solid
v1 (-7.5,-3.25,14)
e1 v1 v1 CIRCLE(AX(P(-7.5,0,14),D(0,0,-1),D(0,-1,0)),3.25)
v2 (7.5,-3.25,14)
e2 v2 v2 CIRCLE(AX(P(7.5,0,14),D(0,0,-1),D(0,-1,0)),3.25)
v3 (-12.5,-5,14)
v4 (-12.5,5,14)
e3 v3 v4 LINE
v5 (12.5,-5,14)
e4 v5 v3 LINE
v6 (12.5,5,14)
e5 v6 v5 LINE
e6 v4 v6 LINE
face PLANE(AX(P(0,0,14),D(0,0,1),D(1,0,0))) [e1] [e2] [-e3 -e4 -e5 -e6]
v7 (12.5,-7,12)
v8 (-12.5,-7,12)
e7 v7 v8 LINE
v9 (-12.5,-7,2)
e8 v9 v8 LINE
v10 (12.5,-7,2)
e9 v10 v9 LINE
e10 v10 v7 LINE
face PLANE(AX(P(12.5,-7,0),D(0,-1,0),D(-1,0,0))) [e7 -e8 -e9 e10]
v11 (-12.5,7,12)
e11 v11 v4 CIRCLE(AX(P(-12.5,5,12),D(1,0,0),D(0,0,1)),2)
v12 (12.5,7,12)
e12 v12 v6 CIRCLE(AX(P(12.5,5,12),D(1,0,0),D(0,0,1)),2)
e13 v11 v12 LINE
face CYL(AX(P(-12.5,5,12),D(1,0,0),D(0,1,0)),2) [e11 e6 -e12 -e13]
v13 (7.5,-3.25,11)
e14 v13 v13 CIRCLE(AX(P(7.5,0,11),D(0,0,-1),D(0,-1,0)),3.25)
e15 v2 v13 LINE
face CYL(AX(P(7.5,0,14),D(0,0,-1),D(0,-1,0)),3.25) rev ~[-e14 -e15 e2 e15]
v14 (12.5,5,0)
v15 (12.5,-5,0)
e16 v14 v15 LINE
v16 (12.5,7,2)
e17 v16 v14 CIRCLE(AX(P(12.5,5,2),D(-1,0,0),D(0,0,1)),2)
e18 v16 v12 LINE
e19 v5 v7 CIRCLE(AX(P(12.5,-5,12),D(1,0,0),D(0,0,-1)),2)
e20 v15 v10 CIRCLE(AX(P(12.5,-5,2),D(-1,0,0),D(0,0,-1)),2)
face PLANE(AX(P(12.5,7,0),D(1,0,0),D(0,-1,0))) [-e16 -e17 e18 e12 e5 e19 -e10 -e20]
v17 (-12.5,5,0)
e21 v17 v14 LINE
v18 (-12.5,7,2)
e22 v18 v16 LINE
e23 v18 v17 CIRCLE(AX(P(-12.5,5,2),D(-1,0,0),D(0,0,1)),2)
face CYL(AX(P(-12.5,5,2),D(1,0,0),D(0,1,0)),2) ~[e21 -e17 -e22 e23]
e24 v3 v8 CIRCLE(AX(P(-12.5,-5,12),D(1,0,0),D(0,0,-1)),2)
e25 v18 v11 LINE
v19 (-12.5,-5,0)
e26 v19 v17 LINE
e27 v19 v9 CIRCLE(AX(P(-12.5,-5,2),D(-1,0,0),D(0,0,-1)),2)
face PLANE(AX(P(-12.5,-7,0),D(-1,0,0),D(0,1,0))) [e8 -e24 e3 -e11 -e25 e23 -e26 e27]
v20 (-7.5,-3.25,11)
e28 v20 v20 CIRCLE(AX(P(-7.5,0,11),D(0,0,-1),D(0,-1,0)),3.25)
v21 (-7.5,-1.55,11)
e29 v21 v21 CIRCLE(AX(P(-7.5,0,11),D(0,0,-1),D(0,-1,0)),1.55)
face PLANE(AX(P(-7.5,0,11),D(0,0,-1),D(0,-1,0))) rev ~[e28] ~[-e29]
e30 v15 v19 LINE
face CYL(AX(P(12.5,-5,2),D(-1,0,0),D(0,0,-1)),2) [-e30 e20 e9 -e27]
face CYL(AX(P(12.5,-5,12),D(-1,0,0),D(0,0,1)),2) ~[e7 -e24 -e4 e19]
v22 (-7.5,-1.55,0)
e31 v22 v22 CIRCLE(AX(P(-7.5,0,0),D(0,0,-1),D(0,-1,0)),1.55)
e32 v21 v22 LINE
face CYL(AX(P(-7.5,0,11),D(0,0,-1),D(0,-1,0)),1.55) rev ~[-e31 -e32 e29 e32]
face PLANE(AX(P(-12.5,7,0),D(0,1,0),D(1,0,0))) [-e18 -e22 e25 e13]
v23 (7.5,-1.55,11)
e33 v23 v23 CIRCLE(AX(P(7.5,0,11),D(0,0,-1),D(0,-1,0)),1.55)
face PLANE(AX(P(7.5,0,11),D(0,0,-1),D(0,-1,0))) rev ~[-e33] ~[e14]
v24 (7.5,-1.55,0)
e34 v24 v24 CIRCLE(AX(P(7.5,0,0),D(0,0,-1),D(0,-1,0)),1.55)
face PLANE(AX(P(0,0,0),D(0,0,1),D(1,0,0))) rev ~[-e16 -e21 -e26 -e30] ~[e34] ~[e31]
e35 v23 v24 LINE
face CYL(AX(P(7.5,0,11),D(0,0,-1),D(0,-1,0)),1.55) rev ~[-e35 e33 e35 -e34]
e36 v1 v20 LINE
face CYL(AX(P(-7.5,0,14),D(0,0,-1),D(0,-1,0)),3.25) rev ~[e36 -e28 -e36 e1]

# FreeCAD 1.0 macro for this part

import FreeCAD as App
import Part
import Sketcher
Q = App.Units.Quantity


def edges_at(feature, points):
    """Names of the edges that pass closest to the given points."""
    edges = feature.Shape.Edges
    near = lambda p: min(range(len(edges)), key=lambda i: edges[i].distToShape(Part.Vertex(*p))[0])
    return sorted({f"Edge{near(p) + 1}" for p in points})

doc = App.newDocument("Part")
params = doc.addObject("Spreadsheet::Sheet", "Params")
for row, (alias, value) in enumerate([
    ("sketch1_width", "25 mm"),
    ("sketch1_height", "14 mm"),
    ("pad1_length", "14 mm"),
    ("sketch2_diameter", "3.1 mm"),
    ("hole_diameter", "3.1 mm"),
    ("hole_cbore_diameter", "6.5 mm"),
    ("hole_cbore_depth", "3 mm"),
    ("fillet_radius", "2 mm"),
    ("fillet2_radius", "2 mm"),
], start=1):
    params.set(f"A{row}", alias)
    params.set(f"B{row}", "=" + value)
    params.setAlias(f"B{row}", alias)

body = doc.addObject("PartDesign::Body", "Body")

# Sketch on XY plane
sketch1 = doc.addObject("Sketcher::SketchObject", "Sketch")
body.addObject(sketch1)
sketch1.AttachmentSupport = (doc.XY_Plane, [""])
sketch1.MapMode = "FlatFace"
sketch1.addGeometry([
    Part.LineSegment(App.Vector(12, 7, 0), App.Vector(-12, 7, 0)),
    Part.LineSegment(App.Vector(-12, 7, 0), App.Vector(-12, -7, 0)),
    Part.LineSegment(App.Vector(-12, -7, 0), App.Vector(12, -7, 0)),
    Part.LineSegment(App.Vector(12, -7, 0), App.Vector(12, 7, 0)),
], False)
sketch1.addConstraint([
    Sketcher.Constraint("Coincident", 0, 2, 1, 1),
    Sketcher.Constraint("Coincident", 1, 2, 2, 1),
    Sketcher.Constraint("Coincident", 2, 2, 3, 1),
    Sketcher.Constraint("Coincident", 3, 2, 0, 1),
    Sketcher.Constraint("Horizontal", 0),
    Sketcher.Constraint("Vertical", 1),
    Sketcher.Constraint("Horizontal", 2),
    Sketcher.Constraint("Vertical", 3),
    Sketcher.Constraint("Symmetric", 0, 2, 2, 2, -1, 1),
    Sketcher.Constraint("DistanceX", 0, 2, 0, 1, Q("25 mm")),
    Sketcher.Constraint("DistanceY", 1, 2, 1, 1, Q("14 mm")),
])
sketch1.setExpression("Constraints[9]", "Params.sketch1_width")
sketch1.setExpression("Constraints[10]", "Params.sketch1_height")
pad1 = doc.addObject("PartDesign::Pad", "Pad")
body.addObject(pad1)
pad1.Profile = sketch1
pad1.setExpression("Length", "Params.pad1_length")

# Sketch on XY plane
sketch2 = doc.addObject("Sketcher::SketchObject", "Sketch001")
body.addObject(sketch2)
sketch2.AttachmentSupport = (doc.XY_Plane, [""])
sketch2.MapMode = "FlatFace"
sketch2.AttachmentOffset = App.Placement(App.Vector(0, 0, 14), App.Rotation())
sketch2.addGeometry([
    Part.Circle(App.Vector(-7.5, 0, 0), App.Vector(0, 0, 1), 1.6),
    Part.Circle(App.Vector(7.5, 0, 0), App.Vector(0, 0, 1), 1.6),
], False)
sketch2.addConstraint([
    Sketcher.Constraint("Equal", 0, 1),
    Sketcher.Constraint("Symmetric", 0, 3, 1, 3, -1, 1),
    Sketcher.Constraint("PointOnObject", 0, 3, -1),
    Sketcher.Constraint("Diameter", 0, Q("3.1 mm")),
    Sketcher.Constraint("DistanceX", 0, 3, 1, 3, Q("15 mm")),
])
sketch2.setExpression("Constraints[3]", "Params.sketch2_diameter")
doc.recompute()
hole = doc.addObject("PartDesign::Hole", "Hole")
body.addObject(hole)
hole.Profile = sketch2
hole.ThreadType = "None"
hole.setExpression("Diameter", "Params.hole_diameter")
hole.DepthType = "ThroughAll"
hole.HoleCutType = "Counterbore"
hole.setExpression("HoleCutDiameter", "Params.hole_cbore_diameter")
hole.setExpression("HoleCutDepth", "Params.hole_cbore_depth")
doc.recompute()

fillet = doc.addObject("PartDesign::Fillet", "Fillet")
body.addObject(fillet)
fillet.Base = (hole, edges_at(hole, [(0, 7, 0), (0, -7, 0)]))
fillet.setExpression("Radius", "Params.fillet_radius")
doc.recompute()

fillet2 = doc.addObject("PartDesign::Fillet", "Fillet001")
body.addObject(fillet2)
fillet2.Base = (fillet, edges_at(fillet, [(0, 7, 14), (0, -7, 14)]))
fillet2.setExpression("Radius", "Params.fillet2_radius")

doc.recompute()
